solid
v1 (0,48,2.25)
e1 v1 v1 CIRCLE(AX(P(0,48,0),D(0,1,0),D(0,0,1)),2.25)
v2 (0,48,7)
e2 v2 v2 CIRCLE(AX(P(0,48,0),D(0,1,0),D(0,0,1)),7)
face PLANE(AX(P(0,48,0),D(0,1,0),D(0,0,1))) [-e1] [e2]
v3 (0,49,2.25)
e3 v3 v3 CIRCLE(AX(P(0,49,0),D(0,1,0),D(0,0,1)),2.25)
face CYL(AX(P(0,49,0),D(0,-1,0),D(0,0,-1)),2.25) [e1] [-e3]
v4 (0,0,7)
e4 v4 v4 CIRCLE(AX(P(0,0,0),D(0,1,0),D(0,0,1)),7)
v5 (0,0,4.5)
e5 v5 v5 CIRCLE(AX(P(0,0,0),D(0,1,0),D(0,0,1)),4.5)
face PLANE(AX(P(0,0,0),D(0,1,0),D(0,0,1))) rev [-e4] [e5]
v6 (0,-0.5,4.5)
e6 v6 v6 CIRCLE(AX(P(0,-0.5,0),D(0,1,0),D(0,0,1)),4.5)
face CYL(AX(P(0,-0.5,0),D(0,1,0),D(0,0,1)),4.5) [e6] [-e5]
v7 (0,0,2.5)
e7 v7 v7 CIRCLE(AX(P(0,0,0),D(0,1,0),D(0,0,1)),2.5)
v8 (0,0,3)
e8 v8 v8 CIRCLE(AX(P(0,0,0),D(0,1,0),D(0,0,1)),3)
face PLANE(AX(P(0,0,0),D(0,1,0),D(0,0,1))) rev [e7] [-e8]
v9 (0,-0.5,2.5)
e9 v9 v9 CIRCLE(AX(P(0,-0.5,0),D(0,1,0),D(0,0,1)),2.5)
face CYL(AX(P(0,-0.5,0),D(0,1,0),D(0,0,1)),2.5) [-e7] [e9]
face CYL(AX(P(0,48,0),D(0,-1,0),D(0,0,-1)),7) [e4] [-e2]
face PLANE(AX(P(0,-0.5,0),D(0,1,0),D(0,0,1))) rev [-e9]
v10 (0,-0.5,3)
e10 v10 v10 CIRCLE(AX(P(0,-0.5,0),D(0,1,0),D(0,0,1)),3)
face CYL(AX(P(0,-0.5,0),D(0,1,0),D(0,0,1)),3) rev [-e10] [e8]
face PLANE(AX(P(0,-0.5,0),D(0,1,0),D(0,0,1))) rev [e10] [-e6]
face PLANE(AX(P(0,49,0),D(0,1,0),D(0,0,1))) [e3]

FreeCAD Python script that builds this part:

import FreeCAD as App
import Part
import Sketcher

doc = App.newDocument("Part")
params = doc.addObject("Spreadsheet::Sheet", "Params")
for row, (alias, value) in enumerate([
    ("sketch1_diameter", "14 mm"),
    ("pad1_length", "48 mm"),
    ("sketch2_diameter", "4.5 mm"),
    ("pad2_length", "1 mm"),
    ("sketch3_diameter", "9 mm"),
    ("pad3_length", "0.5 mm"),
    ("sketch4_diameter", "6 mm"),
    ("sketch4_diameter2", "5 mm"),
], start=1):
    params.set(f"A{row}", alias)
    params.set(f"B{row}", "=" + value)
    params.setAlias(f"B{row}", alias)

body = doc.addObject("PartDesign::Body", "Body")

sketch1 = doc.addObject("Sketcher::SketchObject", "Sketch")
body.addObject(sketch1)
sketch1.AttachmentSupport = (doc.XZ_Plane, [""])
sketch1.MapMode = "FlatFace"
sketch1.addGeometry(Part.Circle(App.Vector(0, 0, 0), App.Vector(0, 0, 1), 7), False)
sketch1.addConstraint([
    Sketcher.Constraint("Coincident", 0, 3, -1, 1),
    Sketcher.Constraint("Diameter", 0, 14.0),
])
sketch1.setExpression("Constraints[1]", "Params.sketch1_diameter")
pad1 = doc.addObject("PartDesign::Pad", "Pad")
body.addObject(pad1)
pad1.Profile = sketch1
pad1.setExpression("Length", "Params.pad1_length")
pad1.Reversed = True

sketch2 = doc.addObject("Sketcher::SketchObject", "Sketch001")
body.addObject(sketch2)
sketch2.AttachmentSupport = (doc.XZ_Plane, [""])
sketch2.MapMode = "FlatFace"
sketch2.AttachmentOffset = App.Placement(App.Vector(0, 0, -48), App.Rotation())
sketch2.addGeometry(Part.Circle(App.Vector(0, 0, 0), App.Vector(0, 0, 1), 2.2), False)
sketch2.addConstraint([
    Sketcher.Constraint("Coincident", 0, 3, -1, 1),
    Sketcher.Constraint("Diameter", 0, 4.5),
])
sketch2.setExpression("Constraints[1]", "Params.sketch2_diameter")
pad2 = doc.addObject("PartDesign::Pad", "Pad001")
body.addObject(pad2)
pad2.Profile = sketch2
pad2.setExpression("Length", "Params.pad2_length")
pad2.Reversed = True

sketch3 = doc.addObject("Sketcher::SketchObject", "Sketch002")
body.addObject(sketch3)
sketch3.AttachmentSupport = (doc.XZ_Plane, [""])
sketch3.MapMode = "FlatFace"
sketch3.addGeometry(Part.Circle(App.Vector(0, 0, 0), App.Vector(0, 0, 1), 4.5), False)
sketch3.addConstraint([
    Sketcher.Constraint("Coincident", 0, 3, -1, 1),
    Sketcher.Constraint("Diameter", 0, 9.0),
])
sketch3.setExpression("Constraints[1]", "Params.sketch3_diameter")
pad3 = doc.addObject("PartDesign::Pad", "Pad002")
body.addObject(pad3)
pad3.Profile = sketch3
pad3.setExpression("Length", "Params.pad3_length")

sketch4 = doc.addObject("Sketcher::SketchObject", "Sketch003")
body.addObject(sketch4)
sketch4.AttachmentSupport = (doc.XZ_Plane, [""])
sketch4.MapMode = "FlatFace"
sketch4.addGeometry([
    Part.Circle(App.Vector(0, 0, 0), App.Vector(0, 0, 1), 3),
    Part.Circle(App.Vector(0, 0, 0), App.Vector(0, 0, 1), 2.5),
], False)
sketch4.addConstraint([
    Sketcher.Constraint("Coincident", 0, 3, -1, 1),
    Sketcher.Constraint("Coincident", 1, 3, -1, 1),
    Sketcher.Constraint("Diameter", 0, 6.0),
    Sketcher.Constraint("Diameter", 1, 5.0),
])
sketch4.setExpression("Constraints[2]", "Params.sketch4_diameter")
sketch4.setExpression("Constraints[3]", "Params.sketch4_diameter2")
pocket1 = doc.addObject("PartDesign::Pocket", "Pocket")
body.addObject(pocket1)
pocket1.Profile = sketch4
pocket1.Type = "ThroughAll"
pocket1.Reversed = True

doc.recompute()
